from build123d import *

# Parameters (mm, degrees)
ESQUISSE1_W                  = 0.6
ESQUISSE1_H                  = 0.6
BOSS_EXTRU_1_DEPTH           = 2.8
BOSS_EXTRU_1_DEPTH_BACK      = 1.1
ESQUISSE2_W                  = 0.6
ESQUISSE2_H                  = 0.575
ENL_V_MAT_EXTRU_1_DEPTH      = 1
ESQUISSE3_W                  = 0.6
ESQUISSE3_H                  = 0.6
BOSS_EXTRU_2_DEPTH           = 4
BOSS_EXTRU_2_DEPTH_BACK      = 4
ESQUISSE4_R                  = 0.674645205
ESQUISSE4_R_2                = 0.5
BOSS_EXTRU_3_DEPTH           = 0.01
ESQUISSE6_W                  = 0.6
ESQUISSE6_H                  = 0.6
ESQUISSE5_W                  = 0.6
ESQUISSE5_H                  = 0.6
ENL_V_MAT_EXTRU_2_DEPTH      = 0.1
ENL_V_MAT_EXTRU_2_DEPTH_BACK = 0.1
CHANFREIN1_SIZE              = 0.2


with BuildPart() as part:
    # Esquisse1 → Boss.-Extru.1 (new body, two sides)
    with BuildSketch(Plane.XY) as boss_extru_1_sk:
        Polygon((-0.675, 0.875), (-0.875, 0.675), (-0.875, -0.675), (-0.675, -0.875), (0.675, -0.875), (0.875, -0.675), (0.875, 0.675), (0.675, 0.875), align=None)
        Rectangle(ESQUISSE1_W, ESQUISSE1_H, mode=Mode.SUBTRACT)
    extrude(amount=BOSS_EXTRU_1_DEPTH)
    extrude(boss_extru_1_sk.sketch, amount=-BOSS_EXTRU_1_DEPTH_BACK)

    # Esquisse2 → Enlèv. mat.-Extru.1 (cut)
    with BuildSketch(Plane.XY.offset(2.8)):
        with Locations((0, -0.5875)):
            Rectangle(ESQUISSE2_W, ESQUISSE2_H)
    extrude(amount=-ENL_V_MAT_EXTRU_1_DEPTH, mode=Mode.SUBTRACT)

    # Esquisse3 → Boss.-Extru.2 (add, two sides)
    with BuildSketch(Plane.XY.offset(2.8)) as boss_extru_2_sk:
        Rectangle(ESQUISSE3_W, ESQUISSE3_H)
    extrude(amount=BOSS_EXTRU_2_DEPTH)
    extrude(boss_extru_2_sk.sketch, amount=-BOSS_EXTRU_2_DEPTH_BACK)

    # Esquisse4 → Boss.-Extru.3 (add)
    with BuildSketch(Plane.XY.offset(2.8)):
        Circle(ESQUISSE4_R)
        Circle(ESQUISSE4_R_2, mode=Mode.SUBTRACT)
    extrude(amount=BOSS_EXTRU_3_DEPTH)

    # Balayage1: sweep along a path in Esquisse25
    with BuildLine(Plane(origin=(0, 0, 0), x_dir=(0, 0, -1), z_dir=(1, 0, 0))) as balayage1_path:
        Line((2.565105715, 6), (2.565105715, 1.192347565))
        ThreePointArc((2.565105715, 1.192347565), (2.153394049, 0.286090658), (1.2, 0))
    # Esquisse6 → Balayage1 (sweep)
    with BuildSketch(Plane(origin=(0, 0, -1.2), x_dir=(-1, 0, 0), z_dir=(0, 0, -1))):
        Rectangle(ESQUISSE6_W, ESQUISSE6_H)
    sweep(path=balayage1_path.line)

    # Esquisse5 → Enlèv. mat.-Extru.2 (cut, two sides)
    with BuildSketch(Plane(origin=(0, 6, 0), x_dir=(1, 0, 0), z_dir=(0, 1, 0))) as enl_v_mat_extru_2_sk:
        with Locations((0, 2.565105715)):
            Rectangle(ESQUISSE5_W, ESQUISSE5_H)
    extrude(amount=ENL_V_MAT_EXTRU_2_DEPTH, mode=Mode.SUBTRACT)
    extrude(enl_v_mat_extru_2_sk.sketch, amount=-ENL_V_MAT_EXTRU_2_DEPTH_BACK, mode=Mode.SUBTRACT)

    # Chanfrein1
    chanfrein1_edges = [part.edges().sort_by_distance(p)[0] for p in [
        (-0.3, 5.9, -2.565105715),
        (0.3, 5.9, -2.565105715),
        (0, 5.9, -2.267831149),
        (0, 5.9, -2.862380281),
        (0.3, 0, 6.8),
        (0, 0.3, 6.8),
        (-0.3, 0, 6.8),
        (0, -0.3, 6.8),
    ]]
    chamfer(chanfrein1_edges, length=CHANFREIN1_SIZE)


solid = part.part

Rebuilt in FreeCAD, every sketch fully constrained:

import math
import FreeCAD as App
import Part
import Sketcher


def edges_at(feature, points):
    """Names of the edges that pass closest to the given points."""
    edges = feature.Shape.Edges
    near = lambda p: min(range(len(edges)), key=lambda i: edges[i].distToShape(Part.Vertex(*p))[0])
    return sorted({f"Edge{near(p) + 1}" for p in points})

doc = App.newDocument("Part")
body = doc.addObject("PartDesign::Body", "Body")

# Sketch on XY plane
sketch1 = body.newObject("Sketcher::SketchObject", "Sketch")
sketch1.AttachmentSupport = (doc.getObject("XY_Plane"), [""])
sketch1.MapMode = "FlatFace"
sketch1.addGeometry(Part.LineSegment(App.Vector(-0.68, 0.88, 0), App.Vector(-0.88, 0.68, 0)), False)
sketch1.addGeometry(Part.LineSegment(App.Vector(-0.88, 0.68, 0), App.Vector(-0.88, -0.68, 0)), False)
sketch1.addGeometry(Part.LineSegment(App.Vector(-0.88, -0.68, 0), App.Vector(-0.68, -0.88, 0)), False)
sketch1.addGeometry(Part.LineSegment(App.Vector(-0.68, -0.88, 0), App.Vector(0.68, -0.88, 0)), False)
sketch1.addGeometry(Part.LineSegment(App.Vector(0.68, -0.88, 0), App.Vector(0.88, -0.68, 0)), False)
sketch1.addGeometry(Part.LineSegment(App.Vector(0.88, -0.68, 0), App.Vector(0.88, 0.68, 0)), False)
sketch1.addGeometry(Part.LineSegment(App.Vector(0.88, 0.68, 0), App.Vector(0.68, 0.88, 0)), False)
sketch1.addGeometry(Part.LineSegment(App.Vector(0.68, 0.88, 0), App.Vector(-0.68, 0.88, 0)), False)
sketch1.addGeometry(Part.LineSegment(App.Vector(0.3, -0.3, 0), App.Vector(-0.3, -0.3, 0)), False)
sketch1.addGeometry(Part.LineSegment(App.Vector(-0.3, -0.3, 0), App.Vector(-0.3, 0.3, 0)), False)
sketch1.addGeometry(Part.LineSegment(App.Vector(-0.3, 0.3, 0), App.Vector(0.3, 0.3, 0)), False)
sketch1.addGeometry(Part.LineSegment(App.Vector(0.3, 0.3, 0), App.Vector(0.3, -0.3, 0)), False)
sketch1.addConstraint(Sketcher.Constraint("Coincident", 0, 2, 1, 1))
sketch1.addConstraint(Sketcher.Constraint("Coincident", 1, 2, 2, 1))
sketch1.addConstraint(Sketcher.Constraint("Coincident", 2, 2, 3, 1))
sketch1.addConstraint(Sketcher.Constraint("Coincident", 3, 2, 4, 1))
sketch1.addConstraint(Sketcher.Constraint("Coincident", 4, 2, 5, 1))
sketch1.addConstraint(Sketcher.Constraint("Coincident", 5, 2, 6, 1))
sketch1.addConstraint(Sketcher.Constraint("Coincident", 6, 2, 7, 1))
sketch1.addConstraint(Sketcher.Constraint("Coincident", 7, 2, 0, 1))
sketch1.addConstraint(Sketcher.Constraint("Coincident", 8, 2, 9, 1))
sketch1.addConstraint(Sketcher.Constraint("Coincident", 9, 2, 10, 1))
sketch1.addConstraint(Sketcher.Constraint("Coincident", 10, 2, 11, 1))
sketch1.addConstraint(Sketcher.Constraint("Coincident", 11, 2, 8, 1))
sketch1.addConstraint(Sketcher.Constraint("Vertical", 1))
sketch1.addConstraint(Sketcher.Constraint("Horizontal", 3))
sketch1.addConstraint(Sketcher.Constraint("Vertical", 5))
sketch1.addConstraint(Sketcher.Constraint("Horizontal", 7))
sketch1.addConstraint(Sketcher.Constraint("Horizontal", 8))
sketch1.addConstraint(Sketcher.Constraint("Vertical", 9))
sketch1.addConstraint(Sketcher.Constraint("Horizontal", 10))
sketch1.addConstraint(Sketcher.Constraint("Vertical", 11))
sketch1.addConstraint(Sketcher.Constraint("Symmetric", 0, 2, 4, 2, -1, 1))
sketch1.addConstraint(Sketcher.Constraint("Symmetric", 2, 2, 6, 2, -1, 1))
sketch1.addConstraint(Sketcher.Constraint("Symmetric", 8, 2, 10, 2, -1, 1))
sketch1.addConstraint(Sketcher.Constraint("Perpendicular", 0, 2))
sketch1.addConstraint(Sketcher.Constraint("Perpendicular", 2, 4))
sketch1.addConstraint(Sketcher.Constraint("Perpendicular", 4, 6))
sketch1.addConstraint(Sketcher.Constraint("Horizontal", 1, 2, 4, 2))
sketch1.addConstraint(Sketcher.Constraint("Vertical", 3, 2, 6, 2))
sketch1.addConstraint(Sketcher.Constraint("Equal", 7, 1))
sketch1.addConstraint(Sketcher.Constraint("Equal", 10, 9))
sketch1.addConstraint(Sketcher.Constraint("DistanceX", 8, 2, 8, 1, 0.6))
sketch1.addConstraint(Sketcher.Constraint("DistanceX", 3, 1, 3, 2, 1.35))
sketch1.addConstraint(Sketcher.Constraint("DistanceX", 1, 2, 2, 2, 0.2))
pad1 = body.newObject("PartDesign::Pad", "Pad")
pad1.Profile = sketch1
pad1.Type = "TwoLengths"
pad1.Length = 2.8
pad1.Length2 = 1.1

# Sketch on XY plane
sketch2 = body.newObject("Sketcher::SketchObject", "Sketch001")
sketch2.AttachmentSupport = (doc.getObject("XY_Plane"), [""])
sketch2.MapMode = "FlatFace"
sketch2.AttachmentOffset = App.Placement(App.Vector(0, 0, 2.8), App.Rotation())
sketch2.addGeometry(Part.LineSegment(App.Vector(-0.3, -0.3, 0), App.Vector(-0.3, -0.9, 0)), False)
sketch2.addGeometry(Part.LineSegment(App.Vector(-0.3, -0.9, 0), App.Vector(0.3, -0.9, 0)), False)
sketch2.addGeometry(Part.LineSegment(App.Vector(0.3, -0.9, 0), App.Vector(0.3, -0.3, 0)), False)
sketch2.addGeometry(Part.LineSegment(App.Vector(0.3, -0.3, 0), App.Vector(-0.3, -0.3, 0)), False)
sketch2.addConstraint(Sketcher.Constraint("Coincident", 0, 2, 1, 1))
sketch2.addConstraint(Sketcher.Constraint("Coincident", 1, 2, 2, 1))
sketch2.addConstraint(Sketcher.Constraint("Coincident", 2, 2, 3, 1))
sketch2.addConstraint(Sketcher.Constraint("Coincident", 3, 2, 0, 1))
sketch2.addConstraint(Sketcher.Constraint("Vertical", 0))
sketch2.addConstraint(Sketcher.Constraint("Horizontal", 1))
sketch2.addConstraint(Sketcher.Constraint("Vertical", 2))
sketch2.addConstraint(Sketcher.Constraint("Horizontal", 3))
sketch2.addConstraint(Sketcher.Constraint("DistanceX", 1, 1, 1, 2, 0.6))
sketch2.addConstraint(Sketcher.Constraint("DistanceX", 0, 2, -1, 1, 0.3))
sketch2.addConstraint(Sketcher.Constraint("DistanceY", 2, 2, -1, 1, 0.3))
sketch2.addConstraint(Sketcher.Constraint("DistanceY", 0, 2, 0, 1, 0.575))
pocket1 = body.newObject("PartDesign::Pocket", "Pocket")
pocket1.Profile = sketch2
pocket1.Length = 1

# Sketch on XY plane
sketch3 = body.newObject("Sketcher::SketchObject", "Sketch002")
sketch3.AttachmentSupport = (doc.getObject("XY_Plane"), [""])
sketch3.MapMode = "FlatFace"
sketch3.AttachmentOffset = App.Placement(App.Vector(0, 0, 2.8), App.Rotation())
sketch3.addGeometry(Part.LineSegment(App.Vector(-0.3, 0.3, 0), App.Vector(-0.3, -0.3, 0)), False)
sketch3.addGeometry(Part.LineSegment(App.Vector(-0.3, -0.3, 0), App.Vector(0.3, -0.3, 0)), False)
sketch3.addGeometry(Part.LineSegment(App.Vector(0.3, -0.3, 0), App.Vector(0.3, 0.3, 0)), False)
sketch3.addGeometry(Part.LineSegment(App.Vector(0.3, 0.3, 0), App.Vector(-0.3, 0.3, 0)), False)
sketch3.addConstraint(Sketcher.Constraint("Coincident", 0, 2, 1, 1))
sketch3.addConstraint(Sketcher.Constraint("Coincident", 1, 2, 2, 1))
sketch3.addConstraint(Sketcher.Constraint("Coincident", 2, 2, 3, 1))
sketch3.addConstraint(Sketcher.Constraint("Coincident", 3, 2, 0, 1))
sketch3.addConstraint(Sketcher.Constraint("Vertical", 0))
sketch3.addConstraint(Sketcher.Constraint("Horizontal", 1))
sketch3.addConstraint(Sketcher.Constraint("Vertical", 2))
sketch3.addConstraint(Sketcher.Constraint("Horizontal", 3))
sketch3.addConstraint(Sketcher.Constraint("Symmetric", 0, 2, 2, 2, -1, 1))
sketch3.addConstraint(Sketcher.Constraint("Equal", 3, 0))
sketch3.addConstraint(Sketcher.Constraint("DistanceX", 1, 1, 1, 2, 0.6))
pad2 = body.newObject("PartDesign::Pad", "Pad001")
pad2.Profile = sketch3
pad2.Type = "TwoLengths"
pad2.Length = 4
pad2.Length2 = 4

# Sketch on XY plane
sketch4 = body.newObject("Sketcher::SketchObject", "Sketch003")
sketch4.AttachmentSupport = (doc.getObject("XY_Plane"), [""])
sketch4.MapMode = "FlatFace"
sketch4.AttachmentOffset = App.Placement(App.Vector(0, 0, 2.8), App.Rotation())
sketch4.addGeometry(Part.Circle(App.Vector(0, 0, 0), App.Vector(0, 0, 1), 0.7), False)
sketch4.addGeometry(Part.Circle(App.Vector(0, 0, 0), App.Vector(0, 0, 1), 0.5), False)
sketch4.addConstraint(Sketcher.Constraint("Coincident", 0, 3, -1, 1))
sketch4.addConstraint(Sketcher.Constraint("Coincident", 1, 3, -1, 1))
sketch4.addConstraint(Sketcher.Constraint("Diameter", 1, 1.0))
sketch4.addConstraint(Sketcher.Constraint("Diameter", 0, 1.34929))
pad3 = body.newObject("PartDesign::Pad", "Pad002")
pad3.Profile = sketch4
pad3.Length = 0.01

# Sketch on XY plane
sketch5 = body.newObject("Sketcher::SketchObject", "Sketch004")
sketch5.AttachmentSupport = (doc.getObject("XY_Plane"), [""])
sketch5.MapMode = "FlatFace"
sketch5.AttachmentOffset = App.Placement(App.Vector(0, 0, -1.2), App.Rotation())
sketch5.addGeometry(Part.LineSegment(App.Vector(0.3, 0.3, 0), App.Vector(0.3, -0.3, 0)), False)
sketch5.addGeometry(Part.LineSegment(App.Vector(0.3, -0.3, 0), App.Vector(-0.3, -0.3, 0)), False)
sketch5.addGeometry(Part.LineSegment(App.Vector(-0.3, -0.3, 0), App.Vector(-0.3, 0.3, 0)), False)
sketch5.addGeometry(Part.LineSegment(App.Vector(-0.3, 0.3, 0), App.Vector(0.3, 0.3, 0)), False)
sketch5.addConstraint(Sketcher.Constraint("Coincident", 0, 2, 1, 1))
sketch5.addConstraint(Sketcher.Constraint("Coincident", 1, 2, 2, 1))
sketch5.addConstraint(Sketcher.Constraint("Coincident", 2, 2, 3, 1))
sketch5.addConstraint(Sketcher.Constraint("Coincident", 3, 2, 0, 1))
sketch5.addConstraint(Sketcher.Constraint("Vertical", 0))
sketch5.addConstraint(Sketcher.Constraint("Horizontal", 1))
sketch5.addConstraint(Sketcher.Constraint("Vertical", 2))
sketch5.addConstraint(Sketcher.Constraint("Horizontal", 3))
sketch5.addConstraint(Sketcher.Constraint("Symmetric", 0, 2, 2, 2, -1, 1))
sketch5.addConstraint(Sketcher.Constraint("Equal", 3, 0))
sketch5.addConstraint(Sketcher.Constraint("DistanceX", 1, 2, 1, 1, 0.6))

# Sketch on YZ plane
sketch6 = body.newObject("Sketcher::SketchObject", "Sketch005")
sketch6.AttachmentSupport = (doc.getObject("YZ_Plane"), [""])
sketch6.MapMode = "FlatFace"
sketch6.addGeometry(Part.LineSegment(App.Vector(6, -2.6, 0), App.Vector(1.2, -2.6, 0)), False)
sketch6.addGeometry(Part.ArcOfCircle(Part.Circle(App.Vector(1.2, -1.4, 0), App.Vector(0, 0, 1), 1.2), math.radians(172), math.radians(270)), False)
sketch6.addConstraint(Sketcher.Constraint("Tangent", 0, 2, 1, 2))
sketch6.addConstraint(Sketcher.Constraint("Horizontal", 0))
sketch6.addConstraint(Sketcher.Constraint("PointOnObject", 1, 1, -2))
sketch6.addConstraint(Sketcher.Constraint("DistanceX", -1, 1, 0, 1, 6.0))
sketch6.addConstraint(Sketcher.Constraint("DistanceY", 1, 1, -1, 1, 1.2))
sketch6.addConstraint(Sketcher.Constraint("Radius", 1, 1.203279))
sketch6.addConstraint(Sketcher.Constraint("DistanceX", 0, 2, 0, 1, 4.807652))
doc.recompute()

additivepipe = body.newObject("PartDesign::AdditivePipe", "AdditivePipe")
additivepipe.Profile = sketch5
additivepipe.Spine = (sketch6, ["Edge1", "Edge2"])

# Sketch on XZ plane
sketch7 = body.newObject("Sketcher::SketchObject", "Sketch006")
sketch7.AttachmentSupport = (doc.getObject("XZ_Plane"), [""])
sketch7.MapMode = "FlatFace"
sketch7.AttachmentOffset = App.Placement(App.Vector(0, 0, -6), App.Rotation())
sketch7.addGeometry(Part.LineSegment(App.Vector(-0.3, -2.9, 0), App.Vector(-0.3, -2.3, 0)), False)
sketch7.addGeometry(Part.LineSegment(App.Vector(-0.3, -2.3, 0), App.Vector(0.3, -2.3, 0)), False)
sketch7.addGeometry(Part.LineSegment(App.Vector(0.3, -2.3, 0), App.Vector(0.3, -2.9, 0)), False)
sketch7.addGeometry(Part.LineSegment(App.Vector(0.3, -2.9, 0), App.Vector(-0.3, -2.9, 0)), False)
sketch7.addConstraint(Sketcher.Constraint("Coincident", 0, 2, 1, 1))
sketch7.addConstraint(Sketcher.Constraint("Coincident", 1, 2, 2, 1))
sketch7.addConstraint(Sketcher.Constraint("Coincident", 2, 2, 3, 1))
sketch7.addConstraint(Sketcher.Constraint("Coincident", 3, 2, 0, 1))
sketch7.addConstraint(Sketcher.Constraint("Vertical", 0))
sketch7.addConstraint(Sketcher.Constraint("Horizontal", 1))
sketch7.addConstraint(Sketcher.Constraint("Vertical", 2))
sketch7.addConstraint(Sketcher.Constraint("Horizontal", 3))
sketch7.addConstraint(Sketcher.Constraint("Equal", 3, 0))
sketch7.addConstraint(Sketcher.Constraint("DistanceX", 1, 1, 1, 2, 0.6))
sketch7.addConstraint(Sketcher.Constraint("DistanceX", 0, 2, -1, 1, 0.3))
sketch7.addConstraint(Sketcher.Constraint("DistanceY", 0, 2, -1, 1, 2.265106))
pocket2 = body.newObject("PartDesign::Pocket", "Pocket001")
pocket2.Profile = sketch7
pocket2.Type = "TwoLengths"
pocket2.Length = 0.1
pocket2.Length2 = 0.1
doc.recompute()

chamfer = body.newObject("PartDesign::Chamfer", "Chamfer")
chamfer.Base = (pocket2, edges_at(pocket2, [
    (-0.3, 5.9, -2.565),
    (0.3, 5.9, -2.565),
    (0, 5.9, -2.268),
    (0, 5.9, -2.862),
    (0.3, 0, 6.8),
    (0, 0.3, 6.8),
    (-0.3, 0, 6.8),
    (0, -0.3, 6.8),
]))
chamfer.Size = 0.2

doc.recompute()
